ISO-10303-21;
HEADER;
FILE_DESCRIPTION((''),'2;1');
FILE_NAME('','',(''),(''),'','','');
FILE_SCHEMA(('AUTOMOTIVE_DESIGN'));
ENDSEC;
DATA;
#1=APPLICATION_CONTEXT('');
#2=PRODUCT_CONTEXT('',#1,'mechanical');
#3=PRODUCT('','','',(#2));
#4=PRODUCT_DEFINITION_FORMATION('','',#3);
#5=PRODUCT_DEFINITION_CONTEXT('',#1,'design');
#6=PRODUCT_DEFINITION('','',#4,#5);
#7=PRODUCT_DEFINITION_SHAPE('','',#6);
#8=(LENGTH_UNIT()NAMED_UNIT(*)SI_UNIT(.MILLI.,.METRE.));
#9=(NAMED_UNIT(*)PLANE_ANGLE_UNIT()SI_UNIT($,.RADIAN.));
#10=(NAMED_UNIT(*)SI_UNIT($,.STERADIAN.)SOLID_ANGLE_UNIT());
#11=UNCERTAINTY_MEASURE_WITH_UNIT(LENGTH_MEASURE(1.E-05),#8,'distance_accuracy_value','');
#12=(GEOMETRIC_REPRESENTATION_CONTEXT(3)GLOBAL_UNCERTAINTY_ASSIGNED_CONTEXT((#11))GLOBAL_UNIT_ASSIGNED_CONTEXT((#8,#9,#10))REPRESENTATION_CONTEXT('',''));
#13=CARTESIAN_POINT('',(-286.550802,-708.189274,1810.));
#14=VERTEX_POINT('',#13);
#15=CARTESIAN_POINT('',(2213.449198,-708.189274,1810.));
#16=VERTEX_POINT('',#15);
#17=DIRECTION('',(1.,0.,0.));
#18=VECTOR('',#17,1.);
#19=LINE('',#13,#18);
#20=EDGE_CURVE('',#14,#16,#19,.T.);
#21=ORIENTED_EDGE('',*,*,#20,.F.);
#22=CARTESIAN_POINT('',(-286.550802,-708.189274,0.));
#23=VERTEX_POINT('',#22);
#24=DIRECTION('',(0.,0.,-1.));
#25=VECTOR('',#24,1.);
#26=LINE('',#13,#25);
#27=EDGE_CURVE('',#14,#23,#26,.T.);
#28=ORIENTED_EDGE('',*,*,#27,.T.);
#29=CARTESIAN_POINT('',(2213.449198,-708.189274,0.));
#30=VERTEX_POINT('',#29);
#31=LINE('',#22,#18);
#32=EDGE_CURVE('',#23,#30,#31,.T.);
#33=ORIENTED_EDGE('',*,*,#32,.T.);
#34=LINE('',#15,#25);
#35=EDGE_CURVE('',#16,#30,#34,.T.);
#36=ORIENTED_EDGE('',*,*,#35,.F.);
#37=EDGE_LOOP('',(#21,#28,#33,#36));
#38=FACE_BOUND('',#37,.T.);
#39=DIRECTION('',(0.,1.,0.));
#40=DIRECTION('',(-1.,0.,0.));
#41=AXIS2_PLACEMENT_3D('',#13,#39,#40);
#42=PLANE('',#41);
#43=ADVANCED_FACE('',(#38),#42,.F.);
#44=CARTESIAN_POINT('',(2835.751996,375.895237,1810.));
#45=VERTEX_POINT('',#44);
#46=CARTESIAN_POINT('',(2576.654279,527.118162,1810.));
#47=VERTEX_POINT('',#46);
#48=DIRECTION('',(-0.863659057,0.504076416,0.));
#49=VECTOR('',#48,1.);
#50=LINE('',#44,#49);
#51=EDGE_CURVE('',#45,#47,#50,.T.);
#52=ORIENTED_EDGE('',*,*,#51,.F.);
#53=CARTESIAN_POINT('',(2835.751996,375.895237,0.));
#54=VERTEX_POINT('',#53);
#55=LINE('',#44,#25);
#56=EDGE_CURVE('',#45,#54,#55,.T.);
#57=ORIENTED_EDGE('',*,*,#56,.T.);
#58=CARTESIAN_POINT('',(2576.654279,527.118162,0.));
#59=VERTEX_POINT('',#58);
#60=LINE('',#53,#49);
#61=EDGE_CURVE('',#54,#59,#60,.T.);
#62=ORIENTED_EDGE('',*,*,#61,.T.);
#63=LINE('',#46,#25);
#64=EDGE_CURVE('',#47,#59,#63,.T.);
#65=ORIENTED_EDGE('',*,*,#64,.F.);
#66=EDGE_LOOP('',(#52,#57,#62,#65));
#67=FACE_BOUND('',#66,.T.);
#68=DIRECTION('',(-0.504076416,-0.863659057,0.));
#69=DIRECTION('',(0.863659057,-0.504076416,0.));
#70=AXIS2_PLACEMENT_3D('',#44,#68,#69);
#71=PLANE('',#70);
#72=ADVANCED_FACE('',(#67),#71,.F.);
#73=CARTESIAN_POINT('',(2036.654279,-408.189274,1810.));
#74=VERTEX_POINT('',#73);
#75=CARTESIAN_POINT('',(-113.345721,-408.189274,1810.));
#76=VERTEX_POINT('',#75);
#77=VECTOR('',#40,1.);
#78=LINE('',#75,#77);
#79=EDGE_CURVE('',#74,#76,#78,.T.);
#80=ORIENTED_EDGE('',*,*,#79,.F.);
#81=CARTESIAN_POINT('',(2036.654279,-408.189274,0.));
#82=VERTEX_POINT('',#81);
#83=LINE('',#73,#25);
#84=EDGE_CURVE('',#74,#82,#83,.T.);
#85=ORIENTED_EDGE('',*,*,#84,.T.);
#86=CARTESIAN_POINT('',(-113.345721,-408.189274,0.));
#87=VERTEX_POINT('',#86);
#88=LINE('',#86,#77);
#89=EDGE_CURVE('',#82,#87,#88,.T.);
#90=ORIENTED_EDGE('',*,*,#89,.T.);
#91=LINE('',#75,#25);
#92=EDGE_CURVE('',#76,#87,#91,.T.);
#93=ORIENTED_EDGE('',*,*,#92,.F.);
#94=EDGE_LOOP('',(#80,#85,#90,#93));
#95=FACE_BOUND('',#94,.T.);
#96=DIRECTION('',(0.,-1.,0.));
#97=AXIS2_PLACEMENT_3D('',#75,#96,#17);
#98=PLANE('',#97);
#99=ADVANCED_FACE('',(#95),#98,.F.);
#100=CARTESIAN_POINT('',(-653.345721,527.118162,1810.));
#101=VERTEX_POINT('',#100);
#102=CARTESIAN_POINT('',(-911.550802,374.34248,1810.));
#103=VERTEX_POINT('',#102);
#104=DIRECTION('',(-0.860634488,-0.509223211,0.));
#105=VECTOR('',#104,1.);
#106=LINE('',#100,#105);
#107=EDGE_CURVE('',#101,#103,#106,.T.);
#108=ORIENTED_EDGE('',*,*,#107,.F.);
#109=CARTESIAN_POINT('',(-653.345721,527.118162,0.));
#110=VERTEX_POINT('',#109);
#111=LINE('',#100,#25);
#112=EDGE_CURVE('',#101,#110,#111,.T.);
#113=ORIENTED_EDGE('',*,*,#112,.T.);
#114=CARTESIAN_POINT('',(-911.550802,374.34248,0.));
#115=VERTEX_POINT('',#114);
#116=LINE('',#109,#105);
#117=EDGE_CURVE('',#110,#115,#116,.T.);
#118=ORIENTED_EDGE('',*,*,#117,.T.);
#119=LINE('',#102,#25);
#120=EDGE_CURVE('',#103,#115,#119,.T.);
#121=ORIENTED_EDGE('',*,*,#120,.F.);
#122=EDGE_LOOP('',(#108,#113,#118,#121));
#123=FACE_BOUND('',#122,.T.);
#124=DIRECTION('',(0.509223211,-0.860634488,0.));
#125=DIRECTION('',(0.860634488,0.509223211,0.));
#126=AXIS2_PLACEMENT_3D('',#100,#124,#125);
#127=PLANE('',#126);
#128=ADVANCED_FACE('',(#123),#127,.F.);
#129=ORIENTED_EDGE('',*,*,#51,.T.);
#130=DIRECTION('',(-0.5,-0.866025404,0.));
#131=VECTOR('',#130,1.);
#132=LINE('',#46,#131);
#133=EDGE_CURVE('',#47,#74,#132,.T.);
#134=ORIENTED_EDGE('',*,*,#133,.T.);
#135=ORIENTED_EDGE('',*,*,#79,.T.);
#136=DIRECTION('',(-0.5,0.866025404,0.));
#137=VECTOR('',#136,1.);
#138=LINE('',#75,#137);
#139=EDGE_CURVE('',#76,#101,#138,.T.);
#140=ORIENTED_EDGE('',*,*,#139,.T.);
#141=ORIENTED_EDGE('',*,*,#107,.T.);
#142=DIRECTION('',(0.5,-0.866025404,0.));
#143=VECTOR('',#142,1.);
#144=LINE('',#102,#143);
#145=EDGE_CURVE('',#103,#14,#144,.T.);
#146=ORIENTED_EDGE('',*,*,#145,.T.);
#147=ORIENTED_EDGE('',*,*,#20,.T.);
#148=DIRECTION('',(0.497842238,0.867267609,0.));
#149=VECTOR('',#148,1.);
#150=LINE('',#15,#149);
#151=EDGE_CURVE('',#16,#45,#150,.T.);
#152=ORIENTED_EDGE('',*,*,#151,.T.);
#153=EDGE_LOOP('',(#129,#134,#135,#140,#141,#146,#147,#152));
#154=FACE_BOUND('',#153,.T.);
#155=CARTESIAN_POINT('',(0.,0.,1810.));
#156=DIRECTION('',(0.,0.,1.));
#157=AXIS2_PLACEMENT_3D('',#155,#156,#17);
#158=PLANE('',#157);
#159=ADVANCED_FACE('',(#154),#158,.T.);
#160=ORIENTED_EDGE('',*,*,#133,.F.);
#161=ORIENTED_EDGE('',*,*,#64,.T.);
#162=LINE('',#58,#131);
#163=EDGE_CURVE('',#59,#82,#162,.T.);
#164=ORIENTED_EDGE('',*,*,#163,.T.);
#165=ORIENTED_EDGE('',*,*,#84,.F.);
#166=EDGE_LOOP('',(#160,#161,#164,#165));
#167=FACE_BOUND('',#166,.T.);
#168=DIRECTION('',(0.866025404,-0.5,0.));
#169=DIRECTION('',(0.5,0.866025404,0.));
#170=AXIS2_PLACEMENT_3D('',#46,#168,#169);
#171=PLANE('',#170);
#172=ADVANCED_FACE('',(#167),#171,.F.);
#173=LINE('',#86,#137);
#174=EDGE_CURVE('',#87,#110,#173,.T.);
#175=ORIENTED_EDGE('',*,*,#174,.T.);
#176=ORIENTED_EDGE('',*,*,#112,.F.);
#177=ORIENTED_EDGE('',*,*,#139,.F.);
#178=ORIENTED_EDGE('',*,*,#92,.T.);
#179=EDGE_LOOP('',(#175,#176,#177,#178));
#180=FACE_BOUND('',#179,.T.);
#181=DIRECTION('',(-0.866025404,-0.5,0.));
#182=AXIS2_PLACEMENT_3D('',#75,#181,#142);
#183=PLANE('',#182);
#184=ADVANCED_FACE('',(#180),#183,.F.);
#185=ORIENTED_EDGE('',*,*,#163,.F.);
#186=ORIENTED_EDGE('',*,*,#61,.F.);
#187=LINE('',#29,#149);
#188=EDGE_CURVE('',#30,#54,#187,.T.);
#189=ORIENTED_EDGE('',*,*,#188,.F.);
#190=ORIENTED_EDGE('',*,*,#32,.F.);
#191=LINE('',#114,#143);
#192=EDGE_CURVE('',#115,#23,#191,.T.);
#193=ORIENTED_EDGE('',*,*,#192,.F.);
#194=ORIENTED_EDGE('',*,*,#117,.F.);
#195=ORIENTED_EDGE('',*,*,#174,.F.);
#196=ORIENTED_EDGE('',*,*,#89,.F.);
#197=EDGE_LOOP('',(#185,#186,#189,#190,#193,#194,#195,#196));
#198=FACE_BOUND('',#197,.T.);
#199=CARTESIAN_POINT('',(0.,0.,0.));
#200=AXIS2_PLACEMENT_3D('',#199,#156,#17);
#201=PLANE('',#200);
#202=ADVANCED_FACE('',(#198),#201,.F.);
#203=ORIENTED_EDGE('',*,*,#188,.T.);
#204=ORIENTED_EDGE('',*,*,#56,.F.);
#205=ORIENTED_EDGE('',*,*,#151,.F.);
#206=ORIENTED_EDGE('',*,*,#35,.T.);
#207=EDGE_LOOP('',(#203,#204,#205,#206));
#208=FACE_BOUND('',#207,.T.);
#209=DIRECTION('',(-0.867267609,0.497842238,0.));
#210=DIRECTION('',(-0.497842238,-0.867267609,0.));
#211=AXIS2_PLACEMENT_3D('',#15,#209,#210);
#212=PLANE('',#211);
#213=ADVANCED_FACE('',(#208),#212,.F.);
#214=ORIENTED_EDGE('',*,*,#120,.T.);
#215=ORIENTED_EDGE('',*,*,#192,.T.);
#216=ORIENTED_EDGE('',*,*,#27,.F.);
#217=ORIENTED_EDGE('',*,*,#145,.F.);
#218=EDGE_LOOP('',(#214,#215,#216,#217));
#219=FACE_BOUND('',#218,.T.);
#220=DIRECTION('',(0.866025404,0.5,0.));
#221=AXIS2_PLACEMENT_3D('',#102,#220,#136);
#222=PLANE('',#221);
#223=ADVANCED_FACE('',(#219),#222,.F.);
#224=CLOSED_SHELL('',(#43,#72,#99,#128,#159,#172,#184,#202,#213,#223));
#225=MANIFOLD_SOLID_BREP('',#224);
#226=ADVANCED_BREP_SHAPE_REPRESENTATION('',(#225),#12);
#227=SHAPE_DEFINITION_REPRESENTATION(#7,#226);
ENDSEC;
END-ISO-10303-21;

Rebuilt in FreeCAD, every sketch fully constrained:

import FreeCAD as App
import Part
import Sketcher

V = App.Vector
Q = App.Units.Quantity

doc = App.newDocument("Part")
params = doc.addObject("Spreadsheet::Sheet", "Params")
for row, (alias, value) in enumerate([
    ("sketch1_width", "2150 mm"),
    ("sketch1_width2", "2500 mm"),
    ("sketch1_length", "1080 mm"),
    ("sketch1_length2", "1250 mm"),
    ("sketch1_length3", "300 mm"),
    ("pad1_length", "1810 mm"),
], start=1):
    params.set(f"A{row}", alias)
    params.set(f"B{row}", "=" + value)
    params.setAlias(f"B{row}", alias)

body = doc.addObject("PartDesign::Body", "Body")

sketch1 = body.newObject("Sketcher::SketchObject", "Sketch")
sketch1.AttachmentSupport = (doc.getObject("XY_Plane"), [""])
sketch1.MapMode = "FlatFace"
sketch1.addGeometry(Part.LineSegment(V(2037, -408, 0), V(-113, -408, 0)), False)
sketch1.addGeometry(Part.LineSegment(V(-113, -408, 0), V(-653, 527, 0)), False)
sketch1.addGeometry(Part.LineSegment(V(-653, 527, 0), V(-912, 374, 0)), False)
sketch1.addGeometry(Part.LineSegment(V(-912, 374, 0), V(-287, -708, 0)), False)
sketch1.addGeometry(Part.LineSegment(V(-287, -708, 0), V(2213, -708, 0)), False)
sketch1.addGeometry(Part.LineSegment(V(2213, -708, 0), V(2836, 376, 0)), False)
sketch1.addGeometry(Part.LineSegment(V(2836, 376, 0), V(2577, 527, 0)), False)
sketch1.addGeometry(Part.LineSegment(V(2577, 527, 0), V(2037, -408, 0)), False)
sketch1.addConstraint(Sketcher.Constraint("Coincident", 0, 2, 1, 1))
sketch1.addConstraint(Sketcher.Constraint("Coincident", 1, 2, 2, 1))
sketch1.addConstraint(Sketcher.Constraint("Coincident", 2, 2, 3, 1))
sketch1.addConstraint(Sketcher.Constraint("Coincident", 3, 2, 4, 1))
sketch1.addConstraint(Sketcher.Constraint("Coincident", 4, 2, 5, 1))
sketch1.addConstraint(Sketcher.Constraint("Coincident", 5, 2, 6, 1))
sketch1.addConstraint(Sketcher.Constraint("Coincident", 6, 2, 7, 1))
sketch1.addConstraint(Sketcher.Constraint("Coincident", 7, 2, 0, 1))
sketch1.addConstraint(Sketcher.Constraint("Horizontal", 0))
sketch1.addConstraint(Sketcher.Constraint("Horizontal", 4))
sketch1.addConstraint(Sketcher.Constraint("Parallel", 1, 3))
sketch1.addConstraint(Sketcher.Constraint("Horizontal", 1, 2, 6, 2))
sketch1.addConstraint(Sketcher.Constraint("Equal", 3, 5))
sketch1.addConstraint(Sketcher.Constraint("Equal", 1, 7))
sketch1.addConstraint(Sketcher.Constraint("DistanceX", 0, 2, 0, 1, 2150.0))
sketch1.addConstraint(Sketcher.Constraint("DistanceX", 4, 1, 4, 2, 2500.0))
sketch1.addConstraint(Sketcher.Constraint("Angle", 1, Q("120 deg")))
sketch1.addConstraint(Sketcher.Constraint("Distance", 1, 1080.0))
sketch1.addConstraint(Sketcher.Constraint("Distance", 3, 1250.0))
sketch1.addConstraint(Sketcher.Constraint("Distance", 6, 300.0))
sketch1.addConstraint(Sketcher.Constraint("DistanceY", 3, 2, 0, 2, 300.0))
sketch1.addConstraint(Sketcher.Constraint("Distance", 2, 300.01712))
sketch1.addConstraint(Sketcher.Constraint("DistanceX", 0, 2, -1, 1, 113.345721))
sketch1.addConstraint(Sketcher.Constraint("DistanceY", -1, 1, 1, 2, 527.118162))
sketch1.setExpression("Constraints[14]", "Params.sketch1_width")
sketch1.setExpression("Constraints[15]", "Params.sketch1_width2")
sketch1.setExpression("Constraints[17]", "Params.sketch1_length")
sketch1.setExpression("Constraints[18]", "Params.sketch1_length2")
sketch1.setExpression("Constraints[19]", "Params.sketch1_length3")
pad1 = body.newObject("PartDesign::Pad", "Pad")
pad1.Profile = sketch1
pad1.setExpression("Length", "Params.pad1_length")

doc.recompute()
